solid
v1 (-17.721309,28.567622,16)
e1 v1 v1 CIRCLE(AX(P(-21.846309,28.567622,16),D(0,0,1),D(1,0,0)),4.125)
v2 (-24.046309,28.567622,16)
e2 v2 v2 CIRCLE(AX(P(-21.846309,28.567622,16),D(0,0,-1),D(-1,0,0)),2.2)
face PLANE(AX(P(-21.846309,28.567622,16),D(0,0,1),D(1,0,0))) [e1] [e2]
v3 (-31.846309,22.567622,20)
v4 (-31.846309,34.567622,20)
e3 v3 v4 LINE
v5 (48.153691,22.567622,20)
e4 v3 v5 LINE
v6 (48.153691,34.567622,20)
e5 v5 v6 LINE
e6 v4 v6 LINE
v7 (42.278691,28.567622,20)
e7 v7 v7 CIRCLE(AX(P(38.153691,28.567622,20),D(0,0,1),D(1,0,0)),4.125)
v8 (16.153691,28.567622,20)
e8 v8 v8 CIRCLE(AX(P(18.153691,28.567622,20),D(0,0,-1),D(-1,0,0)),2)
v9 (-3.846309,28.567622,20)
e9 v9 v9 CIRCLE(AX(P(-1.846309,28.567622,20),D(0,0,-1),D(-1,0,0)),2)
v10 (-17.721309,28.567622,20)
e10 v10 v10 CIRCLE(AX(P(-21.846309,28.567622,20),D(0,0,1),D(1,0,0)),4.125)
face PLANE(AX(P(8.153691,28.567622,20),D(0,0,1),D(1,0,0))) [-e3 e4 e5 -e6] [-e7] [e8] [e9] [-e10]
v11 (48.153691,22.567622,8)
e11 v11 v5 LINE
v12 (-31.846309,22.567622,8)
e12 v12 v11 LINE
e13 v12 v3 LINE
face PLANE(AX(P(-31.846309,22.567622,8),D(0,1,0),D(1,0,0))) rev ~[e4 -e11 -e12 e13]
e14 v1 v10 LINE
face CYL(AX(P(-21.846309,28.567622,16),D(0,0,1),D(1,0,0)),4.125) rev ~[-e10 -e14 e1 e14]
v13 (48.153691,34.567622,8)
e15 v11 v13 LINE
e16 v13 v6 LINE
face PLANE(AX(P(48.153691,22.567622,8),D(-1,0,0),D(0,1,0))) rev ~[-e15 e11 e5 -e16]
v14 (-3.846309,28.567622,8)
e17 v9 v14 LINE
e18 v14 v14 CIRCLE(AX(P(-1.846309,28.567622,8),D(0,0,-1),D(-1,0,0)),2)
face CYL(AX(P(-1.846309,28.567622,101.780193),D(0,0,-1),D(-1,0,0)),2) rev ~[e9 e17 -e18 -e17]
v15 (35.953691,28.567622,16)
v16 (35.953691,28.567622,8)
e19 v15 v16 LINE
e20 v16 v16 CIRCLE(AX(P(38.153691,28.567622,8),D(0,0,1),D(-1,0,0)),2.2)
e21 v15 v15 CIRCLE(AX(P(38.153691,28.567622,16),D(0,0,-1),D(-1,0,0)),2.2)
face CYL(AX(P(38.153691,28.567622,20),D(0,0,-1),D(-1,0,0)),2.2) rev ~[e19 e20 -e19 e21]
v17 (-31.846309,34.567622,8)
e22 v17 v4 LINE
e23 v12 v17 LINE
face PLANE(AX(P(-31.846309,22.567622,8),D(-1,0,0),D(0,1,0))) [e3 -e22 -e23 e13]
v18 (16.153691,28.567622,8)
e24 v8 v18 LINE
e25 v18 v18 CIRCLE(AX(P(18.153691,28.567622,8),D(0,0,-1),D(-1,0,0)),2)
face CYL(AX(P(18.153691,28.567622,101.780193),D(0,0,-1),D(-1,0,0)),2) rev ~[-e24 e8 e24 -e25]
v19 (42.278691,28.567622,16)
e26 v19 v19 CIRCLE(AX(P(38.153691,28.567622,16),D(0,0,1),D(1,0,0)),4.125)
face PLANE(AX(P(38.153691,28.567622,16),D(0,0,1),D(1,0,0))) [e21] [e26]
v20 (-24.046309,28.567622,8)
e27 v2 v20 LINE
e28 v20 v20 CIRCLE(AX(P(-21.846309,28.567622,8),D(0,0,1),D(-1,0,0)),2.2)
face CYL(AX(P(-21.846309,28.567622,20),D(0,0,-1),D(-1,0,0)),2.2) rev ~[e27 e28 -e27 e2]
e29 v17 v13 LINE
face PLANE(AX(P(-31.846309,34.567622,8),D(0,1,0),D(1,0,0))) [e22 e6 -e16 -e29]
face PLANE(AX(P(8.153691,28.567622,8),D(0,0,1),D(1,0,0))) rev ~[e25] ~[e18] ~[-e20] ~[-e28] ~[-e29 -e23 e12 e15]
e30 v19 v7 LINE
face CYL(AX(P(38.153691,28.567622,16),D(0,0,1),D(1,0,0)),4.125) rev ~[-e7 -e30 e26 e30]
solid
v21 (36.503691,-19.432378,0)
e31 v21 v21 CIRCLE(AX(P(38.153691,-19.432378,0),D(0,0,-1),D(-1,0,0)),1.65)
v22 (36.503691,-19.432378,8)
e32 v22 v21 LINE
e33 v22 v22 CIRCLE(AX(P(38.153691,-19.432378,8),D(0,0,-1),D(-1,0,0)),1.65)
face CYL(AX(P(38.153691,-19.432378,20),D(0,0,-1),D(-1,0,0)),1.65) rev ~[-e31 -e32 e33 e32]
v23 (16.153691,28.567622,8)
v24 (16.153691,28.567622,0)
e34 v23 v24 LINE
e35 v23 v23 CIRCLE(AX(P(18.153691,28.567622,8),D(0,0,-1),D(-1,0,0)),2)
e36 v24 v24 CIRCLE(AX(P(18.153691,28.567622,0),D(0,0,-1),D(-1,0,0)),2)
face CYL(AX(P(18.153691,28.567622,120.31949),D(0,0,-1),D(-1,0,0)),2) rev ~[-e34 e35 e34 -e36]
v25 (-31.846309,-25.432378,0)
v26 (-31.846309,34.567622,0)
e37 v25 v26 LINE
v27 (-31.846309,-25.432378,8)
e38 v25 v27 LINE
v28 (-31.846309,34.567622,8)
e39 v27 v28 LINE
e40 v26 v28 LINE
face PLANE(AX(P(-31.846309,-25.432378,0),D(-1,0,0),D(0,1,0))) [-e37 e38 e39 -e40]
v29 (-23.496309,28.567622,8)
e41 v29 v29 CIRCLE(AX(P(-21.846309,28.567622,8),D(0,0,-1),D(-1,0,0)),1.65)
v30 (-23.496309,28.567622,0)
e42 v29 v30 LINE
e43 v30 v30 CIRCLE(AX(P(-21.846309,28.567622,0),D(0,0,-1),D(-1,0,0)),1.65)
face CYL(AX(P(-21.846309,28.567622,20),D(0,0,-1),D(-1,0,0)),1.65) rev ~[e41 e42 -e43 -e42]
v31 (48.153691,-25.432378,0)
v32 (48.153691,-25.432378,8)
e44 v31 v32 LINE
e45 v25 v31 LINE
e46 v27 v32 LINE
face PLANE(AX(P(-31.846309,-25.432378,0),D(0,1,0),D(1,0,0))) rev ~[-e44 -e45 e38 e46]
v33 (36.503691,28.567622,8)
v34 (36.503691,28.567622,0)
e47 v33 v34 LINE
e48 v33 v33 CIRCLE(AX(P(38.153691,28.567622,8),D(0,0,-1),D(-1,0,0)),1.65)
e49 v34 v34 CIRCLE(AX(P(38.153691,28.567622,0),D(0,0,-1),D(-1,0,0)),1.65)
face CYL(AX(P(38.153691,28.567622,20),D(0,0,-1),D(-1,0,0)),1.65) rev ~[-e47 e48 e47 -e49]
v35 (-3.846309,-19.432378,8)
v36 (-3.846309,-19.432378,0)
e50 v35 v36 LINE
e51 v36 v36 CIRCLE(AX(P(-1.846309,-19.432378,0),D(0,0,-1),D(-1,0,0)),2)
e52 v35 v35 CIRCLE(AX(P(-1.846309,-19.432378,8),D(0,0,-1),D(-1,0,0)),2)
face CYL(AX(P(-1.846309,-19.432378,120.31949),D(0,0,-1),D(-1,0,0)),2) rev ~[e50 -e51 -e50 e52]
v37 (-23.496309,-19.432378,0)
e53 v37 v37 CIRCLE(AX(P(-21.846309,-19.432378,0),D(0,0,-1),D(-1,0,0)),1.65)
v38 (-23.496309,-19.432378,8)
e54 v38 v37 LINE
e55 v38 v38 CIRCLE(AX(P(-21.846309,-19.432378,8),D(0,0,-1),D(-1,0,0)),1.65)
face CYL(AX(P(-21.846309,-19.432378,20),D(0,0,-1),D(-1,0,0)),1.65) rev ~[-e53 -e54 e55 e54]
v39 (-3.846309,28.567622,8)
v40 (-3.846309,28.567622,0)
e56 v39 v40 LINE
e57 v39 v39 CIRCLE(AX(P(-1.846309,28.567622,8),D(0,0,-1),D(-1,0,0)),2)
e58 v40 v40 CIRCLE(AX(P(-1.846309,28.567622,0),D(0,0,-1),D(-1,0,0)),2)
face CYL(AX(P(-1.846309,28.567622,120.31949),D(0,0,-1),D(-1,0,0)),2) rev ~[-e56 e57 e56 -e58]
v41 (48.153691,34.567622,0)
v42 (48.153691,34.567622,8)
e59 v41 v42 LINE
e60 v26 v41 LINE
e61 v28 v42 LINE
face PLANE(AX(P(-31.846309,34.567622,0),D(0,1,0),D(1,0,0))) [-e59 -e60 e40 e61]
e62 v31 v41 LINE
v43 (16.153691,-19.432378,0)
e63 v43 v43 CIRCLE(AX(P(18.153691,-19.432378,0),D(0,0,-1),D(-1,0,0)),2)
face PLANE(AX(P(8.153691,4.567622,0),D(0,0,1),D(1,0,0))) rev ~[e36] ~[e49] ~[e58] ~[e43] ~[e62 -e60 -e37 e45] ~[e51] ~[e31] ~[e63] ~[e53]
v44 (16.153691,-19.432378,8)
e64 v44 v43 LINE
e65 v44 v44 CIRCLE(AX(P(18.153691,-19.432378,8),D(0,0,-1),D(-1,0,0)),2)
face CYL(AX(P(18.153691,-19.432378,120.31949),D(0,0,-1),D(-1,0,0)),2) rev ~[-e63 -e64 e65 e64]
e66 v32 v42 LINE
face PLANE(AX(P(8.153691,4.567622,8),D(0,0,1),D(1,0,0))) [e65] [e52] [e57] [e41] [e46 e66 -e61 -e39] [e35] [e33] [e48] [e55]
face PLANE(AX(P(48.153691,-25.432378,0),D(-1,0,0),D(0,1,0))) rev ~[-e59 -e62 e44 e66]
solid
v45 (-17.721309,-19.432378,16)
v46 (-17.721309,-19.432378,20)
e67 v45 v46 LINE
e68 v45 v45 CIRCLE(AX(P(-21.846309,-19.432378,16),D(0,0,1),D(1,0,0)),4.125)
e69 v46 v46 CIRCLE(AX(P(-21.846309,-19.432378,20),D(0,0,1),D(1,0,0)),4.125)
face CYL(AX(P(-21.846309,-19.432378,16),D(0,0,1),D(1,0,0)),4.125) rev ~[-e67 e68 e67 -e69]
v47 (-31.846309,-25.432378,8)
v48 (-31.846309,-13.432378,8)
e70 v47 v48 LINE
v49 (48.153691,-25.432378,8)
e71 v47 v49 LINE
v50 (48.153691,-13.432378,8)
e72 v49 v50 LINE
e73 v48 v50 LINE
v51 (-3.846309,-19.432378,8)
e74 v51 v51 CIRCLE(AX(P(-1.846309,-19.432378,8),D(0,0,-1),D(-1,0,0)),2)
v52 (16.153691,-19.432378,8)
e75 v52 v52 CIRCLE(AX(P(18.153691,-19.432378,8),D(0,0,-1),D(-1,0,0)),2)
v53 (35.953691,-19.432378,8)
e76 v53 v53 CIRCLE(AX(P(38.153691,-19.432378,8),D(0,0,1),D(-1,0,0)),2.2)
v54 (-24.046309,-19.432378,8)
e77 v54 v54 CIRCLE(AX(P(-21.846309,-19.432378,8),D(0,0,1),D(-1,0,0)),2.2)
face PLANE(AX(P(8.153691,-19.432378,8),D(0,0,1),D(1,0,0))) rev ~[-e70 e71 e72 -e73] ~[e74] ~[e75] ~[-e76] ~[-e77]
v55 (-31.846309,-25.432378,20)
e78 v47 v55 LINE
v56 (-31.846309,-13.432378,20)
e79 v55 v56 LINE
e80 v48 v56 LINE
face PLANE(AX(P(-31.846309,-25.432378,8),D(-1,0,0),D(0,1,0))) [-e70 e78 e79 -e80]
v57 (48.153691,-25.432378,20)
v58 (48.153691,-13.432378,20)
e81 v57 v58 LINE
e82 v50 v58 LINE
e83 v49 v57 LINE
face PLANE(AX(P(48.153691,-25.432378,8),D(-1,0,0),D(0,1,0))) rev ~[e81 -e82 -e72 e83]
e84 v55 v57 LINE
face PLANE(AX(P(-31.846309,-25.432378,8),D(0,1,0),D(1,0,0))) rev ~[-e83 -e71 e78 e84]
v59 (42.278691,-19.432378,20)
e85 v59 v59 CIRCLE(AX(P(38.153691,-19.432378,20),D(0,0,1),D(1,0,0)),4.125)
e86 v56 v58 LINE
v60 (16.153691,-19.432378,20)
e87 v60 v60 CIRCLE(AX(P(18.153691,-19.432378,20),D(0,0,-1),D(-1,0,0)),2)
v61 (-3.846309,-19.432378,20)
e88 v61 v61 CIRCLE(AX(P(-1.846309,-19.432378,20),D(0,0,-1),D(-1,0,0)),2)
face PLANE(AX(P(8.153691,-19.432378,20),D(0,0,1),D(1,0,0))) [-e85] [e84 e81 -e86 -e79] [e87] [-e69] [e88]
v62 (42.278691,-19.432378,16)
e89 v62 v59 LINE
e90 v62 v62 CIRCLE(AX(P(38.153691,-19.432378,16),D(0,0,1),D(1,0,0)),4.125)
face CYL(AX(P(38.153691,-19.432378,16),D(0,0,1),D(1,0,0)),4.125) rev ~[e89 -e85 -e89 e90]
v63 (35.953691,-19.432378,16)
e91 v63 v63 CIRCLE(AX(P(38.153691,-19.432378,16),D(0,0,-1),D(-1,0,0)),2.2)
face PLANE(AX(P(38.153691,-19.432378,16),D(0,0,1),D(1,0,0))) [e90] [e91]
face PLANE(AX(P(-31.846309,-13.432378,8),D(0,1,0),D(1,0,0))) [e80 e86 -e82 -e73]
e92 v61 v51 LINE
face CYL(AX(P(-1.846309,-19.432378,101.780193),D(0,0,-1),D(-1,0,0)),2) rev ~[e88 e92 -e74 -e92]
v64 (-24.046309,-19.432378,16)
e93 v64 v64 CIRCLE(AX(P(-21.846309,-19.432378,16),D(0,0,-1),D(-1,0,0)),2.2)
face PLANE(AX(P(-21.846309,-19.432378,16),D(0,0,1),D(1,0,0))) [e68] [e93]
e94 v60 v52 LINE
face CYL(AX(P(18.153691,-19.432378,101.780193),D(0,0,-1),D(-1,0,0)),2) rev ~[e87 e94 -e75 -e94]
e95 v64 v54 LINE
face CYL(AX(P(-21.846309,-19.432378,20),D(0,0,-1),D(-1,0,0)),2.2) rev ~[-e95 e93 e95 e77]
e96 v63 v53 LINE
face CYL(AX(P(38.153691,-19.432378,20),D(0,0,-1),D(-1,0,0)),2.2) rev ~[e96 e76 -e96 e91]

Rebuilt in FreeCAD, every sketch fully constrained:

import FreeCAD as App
import Part
import Sketcher
Q = App.Units.Quantity

doc = App.newDocument("Part")
body = doc.addObject("PartDesign::Body", "Body")

# Sketch on XY plane
sketch1 = doc.addObject("Sketcher::SketchObject", "Sketch")
body.addObject(sketch1)
sketch1.AttachmentSupport = (doc.XY_Plane, [""])
sketch1.MapMode = "FlatFace"
sketch1.addGeometry([
    Part.LineSegment(App.Vector(-32, 35, 0), App.Vector(-32, -25, 0)),
    Part.LineSegment(App.Vector(-32, -25, 0), App.Vector(48, -25, 0)),
    Part.LineSegment(App.Vector(48, -25, 0), App.Vector(48, 35, 0)),
    Part.LineSegment(App.Vector(48, 35, 0), App.Vector(-32, 35, 0)),
], False)
sketch1.addConstraint([
    Sketcher.Constraint("Coincident", 0, 2, 1, 1),
    Sketcher.Constraint("Coincident", 1, 2, 2, 1),
    Sketcher.Constraint("Coincident", 2, 2, 3, 1),
    Sketcher.Constraint("Coincident", 3, 2, 0, 1),
    Sketcher.Constraint("Vertical", 0),
    Sketcher.Constraint("Horizontal", 1),
    Sketcher.Constraint("Vertical", 2),
    Sketcher.Constraint("Horizontal", 3),
    Sketcher.Constraint("DistanceX", 1, 1, 1, 2, Q("80 mm")),
    Sketcher.Constraint("DistanceY", 0, 2, 0, 1, Q("60 mm")),
    Sketcher.Constraint("DistanceX", 0, 2, -1, 1, Q("31.846309 mm")),
    Sketcher.Constraint("DistanceY", 0, 2, -1, 1, Q("25.432378 mm")),
])
pad1 = doc.addObject("PartDesign::Pad", "Pad")
body.addObject(pad1)
pad1.Profile = sketch1
pad1.Length = 8

# Sketch on XY plane
sketch2 = doc.addObject("Sketcher::SketchObject", "Sketch001")
body.addObject(sketch2)
sketch2.AttachmentSupport = (doc.XY_Plane, [""])
sketch2.MapMode = "FlatFace"
sketch2.AttachmentOffset = App.Placement(App.Vector(0, 0, 20), App.Rotation())
sketch2.addGeometry([
    Part.Circle(App.Vector(-1.8, 28.6, 0), App.Vector(0, 0, 1), 2),
    Part.Circle(App.Vector(18.2, 28.6, 0), App.Vector(0, 0, 1), 2),
    Part.Circle(App.Vector(18.2, -19.4, 0), App.Vector(0, 0, 1), 2),
    Part.Circle(App.Vector(-1.8, -19.4, 0), App.Vector(0, 0, 1), 2),
], False)
sketch2.addConstraint([
    Sketcher.Constraint("Equal", 0, 1),
    Sketcher.Constraint("Equal", 1, 2),
    Sketcher.Constraint("Equal", 2, 3),
    Sketcher.Constraint("Horizontal", 0, 3, 1, 3),
    Sketcher.Constraint("Horizontal", 2, 3, 3, 3),
    Sketcher.Constraint("Vertical", 1, 3, 2, 3),
    Sketcher.Constraint("Vertical", 0, 3, 3, 3),
    Sketcher.Constraint("Diameter", 0, Q("4 mm")),
    Sketcher.Constraint("DistanceX", 0, 3, 1, 3, Q("20 mm")),
    Sketcher.Constraint("DistanceY", 2, 3, 1, 3, Q("48 mm")),
    Sketcher.Constraint("DistanceX", 0, 3, -1, 1, Q("1.846309 mm")),
    Sketcher.Constraint("DistanceY", -1, 1, 0, 3, Q("28.567622 mm")),
])
doc.recompute()
hole = doc.addObject("PartDesign::Hole", "Hole")
body.addObject(hole)
hole.Profile = sketch2
hole.ThreadType = "None"
hole.Diameter = 4
hole.DepthType = "ThroughAll"

# Sketch on XY plane
sketch3 = doc.addObject("Sketcher::SketchObject", "Sketch002")
body.addObject(sketch3)
sketch3.AttachmentSupport = (doc.XY_Plane, [""])
sketch3.MapMode = "FlatFace"
sketch3.AttachmentOffset = App.Placement(App.Vector(0, 0, 20), App.Rotation())
sketch3.addGeometry([
    Part.Circle(App.Vector(-21.8, 28.6, 0), App.Vector(0, 0, 1), 1.6),
    Part.Circle(App.Vector(38.2, 28.6, 0), App.Vector(0, 0, 1), 1.6),
    Part.Circle(App.Vector(38.2, -19.4, 0), App.Vector(0, 0, 1), 1.6),
    Part.Circle(App.Vector(-21.8, -19.4, 0), App.Vector(0, 0, 1), 1.6),
], False)
sketch3.addConstraint([
    Sketcher.Constraint("Equal", 0, 1),
    Sketcher.Constraint("Equal", 1, 2),
    Sketcher.Constraint("Equal", 2, 3),
    Sketcher.Constraint("Horizontal", 0, 3, 1, 3),
    Sketcher.Constraint("Horizontal", 2, 3, 3, 3),
    Sketcher.Constraint("Vertical", 1, 3, 2, 3),
    Sketcher.Constraint("Vertical", 0, 3, 3, 3),
    Sketcher.Constraint("Diameter", 0, Q("3.3 mm")),
    Sketcher.Constraint("DistanceX", 0, 3, 1, 3, Q("60 mm")),
    Sketcher.Constraint("DistanceY", 2, 3, 1, 3, Q("48 mm")),
    Sketcher.Constraint("DistanceX", 0, 3, -1, 1, Q("21.846309 mm")),
    Sketcher.Constraint("DistanceY", -1, 1, 0, 3, Q("28.567622 mm")),
])
doc.recompute()
hole2 = doc.addObject("PartDesign::Hole", "Hole001")
body.addObject(hole2)
hole2.Profile = sketch3
hole2.ThreadType = "None"
hole2.Diameter = 3.3
hole2.DepthType = "ThroughAll"
hole2.HoleCutType = "Counterbore"
hole2.HoleCutDiameter = 8.25
hole2.HoleCutDepth = 4
body2 = doc.addObject("PartDesign::Body", "Body001")

# Sketch on XY plane
sketch4 = doc.addObject("Sketcher::SketchObject", "Sketch003")
body2.addObject(sketch4)
sketch4.AttachmentSupport = (doc.getObject("XY_Plane001"), [""])
sketch4.MapMode = "FlatFace"
sketch4.AttachmentOffset = App.Placement(App.Vector(0, 0, 8), App.Rotation())
sketch4.addGeometry([
    Part.LineSegment(App.Vector(-32, 35, 0), App.Vector(-32, 23, 0)),
    Part.LineSegment(App.Vector(-32, 23, 0), App.Vector(48, 23, 0)),
    Part.LineSegment(App.Vector(48, 23, 0), App.Vector(48, 35, 0)),
    Part.LineSegment(App.Vector(48, 35, 0), App.Vector(-32, 35, 0)),
], False)
sketch4.addConstraint([
    Sketcher.Constraint("Coincident", 0, 2, 1, 1),
    Sketcher.Constraint("Coincident", 1, 2, 2, 1),
    Sketcher.Constraint("Coincident", 2, 2, 3, 1),
    Sketcher.Constraint("Coincident", 3, 2, 0, 1),
    Sketcher.Constraint("Vertical", 0),
    Sketcher.Constraint("Horizontal", 1),
    Sketcher.Constraint("Vertical", 2),
    Sketcher.Constraint("Horizontal", 3),
    Sketcher.Constraint("DistanceX", 1, 1, 1, 2, Q("80 mm")),
    Sketcher.Constraint("DistanceY", 0, 2, 0, 1, Q("12 mm")),
    Sketcher.Constraint("DistanceX", 0, 2, -1, 1, Q("31.846309 mm")),
    Sketcher.Constraint("DistanceY", -1, 1, 0, 2, Q("22.567622 mm")),
])
pad2 = doc.addObject("PartDesign::Pad", "Pad001")
body2.addObject(pad2)
pad2.Profile = sketch4
pad2.Length = 12

# Sketch on XY plane
sketch5 = doc.addObject("Sketcher::SketchObject", "Sketch004")
body2.addObject(sketch5)
sketch5.AttachmentSupport = (doc.getObject("XY_Plane001"), [""])
sketch5.MapMode = "FlatFace"
sketch5.AttachmentOffset = App.Placement(App.Vector(0, 0, 20), App.Rotation())
sketch5.addGeometry([
    Part.Circle(App.Vector(-21.8, 28.6, 0), App.Vector(0, 0, 1), 2.2),
    Part.Circle(App.Vector(38.2, 28.6, 0), App.Vector(0, 0, 1), 2.2),
    Part.Circle(App.Vector(38.2, -19.4, 0), App.Vector(0, 0, 1), 2.2),
    Part.Circle(App.Vector(-21.8, -19.4, 0), App.Vector(0, 0, 1), 2.2),
], False)
sketch5.addConstraint([
    Sketcher.Constraint("Equal", 0, 1),
    Sketcher.Constraint("Equal", 1, 2),
    Sketcher.Constraint("Equal", 2, 3),
    Sketcher.Constraint("Horizontal", 0, 3, 1, 3),
    Sketcher.Constraint("Horizontal", 2, 3, 3, 3),
    Sketcher.Constraint("Vertical", 1, 3, 2, 3),
    Sketcher.Constraint("Vertical", 0, 3, 3, 3),
    Sketcher.Constraint("Diameter", 0, Q("4.4 mm")),
    Sketcher.Constraint("DistanceX", 0, 3, 1, 3, Q("60 mm")),
    Sketcher.Constraint("DistanceY", 2, 3, 1, 3, Q("48 mm")),
    Sketcher.Constraint("DistanceX", 0, 3, -1, 1, Q("21.846309 mm")),
    Sketcher.Constraint("DistanceY", -1, 1, 0, 3, Q("28.567622 mm")),
])
doc.recompute()
hole3 = doc.addObject("PartDesign::Hole", "Hole002")
body2.addObject(hole3)
hole3.Profile = sketch5
hole3.ThreadType = "None"
hole3.Diameter = 4.4
hole3.DepthType = "Dimension"
hole3.Depth = 12
hole3.DrillPoint = "Angled"
hole3.DrillPointAngle = 118
hole3.HoleCutType = "Counterbore"
hole3.HoleCutDiameter = 8.25
hole3.HoleCutDepth = 4

# Sketch on XY plane
sketch6 = doc.addObject("Sketcher::SketchObject", "Sketch005")
body2.addObject(sketch6)
sketch6.AttachmentSupport = (doc.getObject("XY_Plane001"), [""])
sketch6.MapMode = "FlatFace"
sketch6.AttachmentOffset = App.Placement(App.Vector(0, 0, 20), App.Rotation())
sketch6.addGeometry([
    Part.Circle(App.Vector(-1.8, 28.6, 0), App.Vector(0, 0, 1), 2),
    Part.Circle(App.Vector(18.2, 28.6, 0), App.Vector(0, 0, 1), 2),
    Part.Circle(App.Vector(18.2, -19.4, 0), App.Vector(0, 0, 1), 2),
    Part.Circle(App.Vector(-1.8, -19.4, 0), App.Vector(0, 0, 1), 2),
], False)
sketch6.addConstraint([
    Sketcher.Constraint("Equal", 0, 1),
    Sketcher.Constraint("Equal", 1, 2),
    Sketcher.Constraint("Equal", 2, 3),
    Sketcher.Constraint("Horizontal", 0, 3, 1, 3),
    Sketcher.Constraint("Horizontal", 2, 3, 3, 3),
    Sketcher.Constraint("Vertical", 1, 3, 2, 3),
    Sketcher.Constraint("Vertical", 0, 3, 3, 3),
    Sketcher.Constraint("Diameter", 0, Q("4 mm")),
    Sketcher.Constraint("DistanceX", 0, 3, 1, 3, Q("20 mm")),
    Sketcher.Constraint("DistanceY", 2, 3, 1, 3, Q("48 mm")),
    Sketcher.Constraint("DistanceX", 0, 3, -1, 1, Q("1.846309 mm")),
    Sketcher.Constraint("DistanceY", -1, 1, 0, 3, Q("28.567622 mm")),
])
doc.recompute()
hole4 = doc.addObject("PartDesign::Hole", "Hole003")
body2.addObject(hole4)
hole4.Profile = sketch6
hole4.ThreadType = "None"
hole4.Diameter = 4
hole4.DepthType = "ThroughAll"
body3 = doc.addObject("PartDesign::Body", "Body002")

# Sketch on XY plane
sketch7 = doc.addObject("Sketcher::SketchObject", "Sketch006")
body3.addObject(sketch7)
sketch7.AttachmentSupport = (doc.getObject("XY_Plane002"), [""])
sketch7.MapMode = "FlatFace"
sketch7.AttachmentOffset = App.Placement(App.Vector(0, 0, 8), App.Rotation())
sketch7.addGeometry([
    Part.LineSegment(App.Vector(-32, -13, 0), App.Vector(-32, -25, 0)),
    Part.LineSegment(App.Vector(-32, -25, 0), App.Vector(48, -25, 0)),
    Part.LineSegment(App.Vector(48, -25, 0), App.Vector(48, -13, 0)),
    Part.LineSegment(App.Vector(48, -13, 0), App.Vector(-32, -13, 0)),
], False)
sketch7.addConstraint([
    Sketcher.Constraint("Coincident", 0, 2, 1, 1),
    Sketcher.Constraint("Coincident", 1, 2, 2, 1),
    Sketcher.Constraint("Coincident", 2, 2, 3, 1),
    Sketcher.Constraint("Coincident", 3, 2, 0, 1),
    Sketcher.Constraint("Vertical", 0),
    Sketcher.Constraint("Horizontal", 1),
    Sketcher.Constraint("Vertical", 2),
    Sketcher.Constraint("Horizontal", 3),
    Sketcher.Constraint("DistanceX", 1, 1, 1, 2, Q("80 mm")),
    Sketcher.Constraint("DistanceY", 0, 2, 0, 1, Q("12 mm")),
    Sketcher.Constraint("DistanceX", 0, 2, -1, 1, Q("31.846309 mm")),
    Sketcher.Constraint("DistanceY", 0, 2, -1, 1, Q("25.432378 mm")),
])
pad3 = doc.addObject("PartDesign::Pad", "Pad002")
body3.addObject(pad3)
pad3.Profile = sketch7
pad3.Length = 12

# Sketch on XY plane
sketch8 = doc.addObject("Sketcher::SketchObject", "Sketch007")
body3.addObject(sketch8)
sketch8.AttachmentSupport = (doc.getObject("XY_Plane002"), [""])
sketch8.MapMode = "FlatFace"
sketch8.AttachmentOffset = App.Placement(App.Vector(0, 0, 20), App.Rotation())
sketch8.addGeometry([
    Part.Circle(App.Vector(-21.8, 28.6, 0), App.Vector(0, 0, 1), 2.2),
    Part.Circle(App.Vector(38.2, 28.6, 0), App.Vector(0, 0, 1), 2.2),
    Part.Circle(App.Vector(38.2, -19.4, 0), App.Vector(0, 0, 1), 2.2),
    Part.Circle(App.Vector(-21.8, -19.4, 0), App.Vector(0, 0, 1), 2.2),
], False)
sketch8.addConstraint([
    Sketcher.Constraint("Equal", 0, 1),
    Sketcher.Constraint("Equal", 1, 2),
    Sketcher.Constraint("Equal", 2, 3),
    Sketcher.Constraint("Horizontal", 0, 3, 1, 3),
    Sketcher.Constraint("Horizontal", 2, 3, 3, 3),
    Sketcher.Constraint("Vertical", 1, 3, 2, 3),
    Sketcher.Constraint("Vertical", 0, 3, 3, 3),
    Sketcher.Constraint("Diameter", 0, Q("4.4 mm")),
    Sketcher.Constraint("DistanceX", 0, 3, 1, 3, Q("60 mm")),
    Sketcher.Constraint("DistanceY", 2, 3, 1, 3, Q("48 mm")),
    Sketcher.Constraint("DistanceX", 0, 3, -1, 1, Q("21.846309 mm")),
    Sketcher.Constraint("DistanceY", -1, 1, 0, 3, Q("28.567622 mm")),
])
doc.recompute()
hole5 = doc.addObject("PartDesign::Hole", "Hole004")
body3.addObject(hole5)
hole5.Profile = sketch8
hole5.ThreadType = "None"
hole5.Diameter = 4.4
hole5.DepthType = "Dimension"
hole5.Depth = 12
hole5.DrillPoint = "Angled"
hole5.DrillPointAngle = 118
hole5.HoleCutType = "Counterbore"
hole5.HoleCutDiameter = 8.25
hole5.HoleCutDepth = 4

# Sketch on XY plane
sketch9 = doc.addObject("Sketcher::SketchObject", "Sketch008")
body3.addObject(sketch9)
sketch9.AttachmentSupport = (doc.getObject("XY_Plane002"), [""])
sketch9.MapMode = "FlatFace"
sketch9.AttachmentOffset = App.Placement(App.Vector(0, 0, 20), App.Rotation())
sketch9.addGeometry([
    Part.Circle(App.Vector(-1.8, 28.6, 0), App.Vector(0, 0, 1), 2),
    Part.Circle(App.Vector(18.2, 28.6, 0), App.Vector(0, 0, 1), 2),
    Part.Circle(App.Vector(18.2, -19.4, 0), App.Vector(0, 0, 1), 2),
    Part.Circle(App.Vector(-1.8, -19.4, 0), App.Vector(0, 0, 1), 2),
], False)
sketch9.addConstraint([
    Sketcher.Constraint("Equal", 0, 1),
    Sketcher.Constraint("Equal", 1, 2),
    Sketcher.Constraint("Equal", 2, 3),
    Sketcher.Constraint("Horizontal", 0, 3, 1, 3),
    Sketcher.Constraint("Horizontal", 2, 3, 3, 3),
    Sketcher.Constraint("Vertical", 1, 3, 2, 3),
    Sketcher.Constraint("Vertical", 0, 3, 3, 3),
    Sketcher.Constraint("Diameter", 0, Q("4 mm")),
    Sketcher.Constraint("DistanceX", 0, 3, 1, 3, Q("20 mm")),
    Sketcher.Constraint("DistanceY", 2, 3, 1, 3, Q("48 mm")),
    Sketcher.Constraint("DistanceX", 0, 3, -1, 1, Q("1.846309 mm")),
    Sketcher.Constraint("DistanceY", -1, 1, 0, 3, Q("28.567622 mm")),
])
doc.recompute()
hole6 = doc.addObject("PartDesign::Hole", "Hole005")
body3.addObject(hole6)
hole6.Profile = sketch9
hole6.ThreadType = "None"
hole6.Diameter = 4
hole6.DepthType = "ThroughAll"

doc.recompute()
